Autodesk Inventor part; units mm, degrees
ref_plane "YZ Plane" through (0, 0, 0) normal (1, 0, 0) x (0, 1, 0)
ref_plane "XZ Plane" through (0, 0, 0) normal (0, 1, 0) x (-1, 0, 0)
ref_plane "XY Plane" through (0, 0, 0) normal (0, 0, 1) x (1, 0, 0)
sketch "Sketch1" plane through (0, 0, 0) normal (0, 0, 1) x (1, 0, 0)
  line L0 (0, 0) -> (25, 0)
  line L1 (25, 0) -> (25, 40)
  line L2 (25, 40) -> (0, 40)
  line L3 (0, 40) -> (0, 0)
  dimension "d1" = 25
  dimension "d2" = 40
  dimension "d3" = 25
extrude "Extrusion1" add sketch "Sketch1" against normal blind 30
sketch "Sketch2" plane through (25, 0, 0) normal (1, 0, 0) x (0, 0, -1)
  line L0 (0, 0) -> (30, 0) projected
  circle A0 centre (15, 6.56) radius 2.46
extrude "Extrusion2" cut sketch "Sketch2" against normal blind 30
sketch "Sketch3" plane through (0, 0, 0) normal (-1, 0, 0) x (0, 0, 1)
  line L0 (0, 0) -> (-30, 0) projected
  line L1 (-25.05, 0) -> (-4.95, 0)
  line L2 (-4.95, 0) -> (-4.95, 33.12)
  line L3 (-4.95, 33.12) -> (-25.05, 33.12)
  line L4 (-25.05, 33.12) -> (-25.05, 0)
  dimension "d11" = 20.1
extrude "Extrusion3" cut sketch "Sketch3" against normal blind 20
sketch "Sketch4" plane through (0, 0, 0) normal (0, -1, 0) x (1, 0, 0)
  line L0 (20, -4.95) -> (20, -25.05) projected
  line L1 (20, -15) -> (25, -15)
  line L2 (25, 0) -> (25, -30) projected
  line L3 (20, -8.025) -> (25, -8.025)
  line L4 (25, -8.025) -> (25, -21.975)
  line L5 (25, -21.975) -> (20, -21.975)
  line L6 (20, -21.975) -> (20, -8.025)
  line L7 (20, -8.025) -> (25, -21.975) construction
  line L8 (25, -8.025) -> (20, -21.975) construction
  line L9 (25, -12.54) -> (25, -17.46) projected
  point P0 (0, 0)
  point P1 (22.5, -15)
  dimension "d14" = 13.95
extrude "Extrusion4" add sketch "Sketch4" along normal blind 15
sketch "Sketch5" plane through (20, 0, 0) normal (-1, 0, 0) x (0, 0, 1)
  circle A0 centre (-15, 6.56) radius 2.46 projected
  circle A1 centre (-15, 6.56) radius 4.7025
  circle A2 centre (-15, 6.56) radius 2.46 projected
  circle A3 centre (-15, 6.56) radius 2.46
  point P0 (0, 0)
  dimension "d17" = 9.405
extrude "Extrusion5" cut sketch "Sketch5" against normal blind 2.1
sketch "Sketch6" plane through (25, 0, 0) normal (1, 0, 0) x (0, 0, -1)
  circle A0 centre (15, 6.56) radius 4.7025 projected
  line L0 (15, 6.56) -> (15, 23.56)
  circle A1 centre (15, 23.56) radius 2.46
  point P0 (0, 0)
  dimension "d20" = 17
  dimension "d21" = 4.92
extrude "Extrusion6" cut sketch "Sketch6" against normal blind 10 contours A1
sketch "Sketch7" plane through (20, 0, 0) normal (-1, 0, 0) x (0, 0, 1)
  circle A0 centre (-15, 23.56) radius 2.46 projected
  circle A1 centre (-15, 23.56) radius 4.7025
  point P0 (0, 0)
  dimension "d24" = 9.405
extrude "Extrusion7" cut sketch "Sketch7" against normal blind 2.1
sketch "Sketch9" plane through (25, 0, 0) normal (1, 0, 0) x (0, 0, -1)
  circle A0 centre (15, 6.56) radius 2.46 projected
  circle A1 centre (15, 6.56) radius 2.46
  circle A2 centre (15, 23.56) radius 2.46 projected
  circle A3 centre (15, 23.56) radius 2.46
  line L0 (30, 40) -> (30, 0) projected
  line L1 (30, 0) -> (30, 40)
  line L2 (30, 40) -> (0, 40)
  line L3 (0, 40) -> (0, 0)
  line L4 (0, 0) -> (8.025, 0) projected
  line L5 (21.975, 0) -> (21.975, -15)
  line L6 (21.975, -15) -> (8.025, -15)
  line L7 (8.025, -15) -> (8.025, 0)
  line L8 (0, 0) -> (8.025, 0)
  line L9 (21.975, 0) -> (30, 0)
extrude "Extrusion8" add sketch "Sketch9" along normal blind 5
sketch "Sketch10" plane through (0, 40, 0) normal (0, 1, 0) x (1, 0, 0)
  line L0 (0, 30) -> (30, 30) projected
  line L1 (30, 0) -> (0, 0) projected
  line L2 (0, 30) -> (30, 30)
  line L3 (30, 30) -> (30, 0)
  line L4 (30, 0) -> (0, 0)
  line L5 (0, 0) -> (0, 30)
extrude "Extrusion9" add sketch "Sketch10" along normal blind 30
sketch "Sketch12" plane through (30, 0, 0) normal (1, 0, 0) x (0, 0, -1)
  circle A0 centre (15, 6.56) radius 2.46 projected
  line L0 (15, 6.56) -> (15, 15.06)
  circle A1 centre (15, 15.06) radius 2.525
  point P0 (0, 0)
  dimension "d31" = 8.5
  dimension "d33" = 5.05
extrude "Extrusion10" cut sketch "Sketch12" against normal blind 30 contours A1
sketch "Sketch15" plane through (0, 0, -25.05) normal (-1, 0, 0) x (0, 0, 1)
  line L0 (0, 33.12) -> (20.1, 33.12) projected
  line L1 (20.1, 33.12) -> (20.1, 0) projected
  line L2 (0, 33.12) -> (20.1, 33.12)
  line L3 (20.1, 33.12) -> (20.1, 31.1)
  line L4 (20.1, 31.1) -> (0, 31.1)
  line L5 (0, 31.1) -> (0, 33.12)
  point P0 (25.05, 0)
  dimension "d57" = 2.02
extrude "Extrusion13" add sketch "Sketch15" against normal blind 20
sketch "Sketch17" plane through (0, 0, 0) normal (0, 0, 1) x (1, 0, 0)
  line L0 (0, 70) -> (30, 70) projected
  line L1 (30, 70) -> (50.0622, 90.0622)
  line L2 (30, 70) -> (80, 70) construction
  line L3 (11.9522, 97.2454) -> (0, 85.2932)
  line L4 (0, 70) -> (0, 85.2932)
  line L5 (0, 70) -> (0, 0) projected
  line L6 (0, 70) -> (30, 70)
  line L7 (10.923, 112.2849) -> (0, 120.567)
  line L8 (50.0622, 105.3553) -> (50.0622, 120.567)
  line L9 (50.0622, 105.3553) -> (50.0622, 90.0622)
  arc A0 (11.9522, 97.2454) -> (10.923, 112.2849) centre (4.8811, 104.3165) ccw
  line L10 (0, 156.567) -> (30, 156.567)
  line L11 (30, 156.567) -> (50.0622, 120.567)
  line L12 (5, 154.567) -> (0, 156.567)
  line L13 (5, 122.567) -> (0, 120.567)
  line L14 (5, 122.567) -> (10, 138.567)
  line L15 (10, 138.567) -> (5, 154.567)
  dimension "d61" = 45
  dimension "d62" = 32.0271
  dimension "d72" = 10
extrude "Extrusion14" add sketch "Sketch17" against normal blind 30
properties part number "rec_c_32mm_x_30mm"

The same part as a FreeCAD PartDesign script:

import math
import FreeCAD as App
import Part
import Sketcher
Q = App.Units.Quantity


def add_polygon(sketch, points):
    """Adds a closed chain of lines whose ends are joined by coincident constraints."""
    first, n = sketch.GeometryCount, len(points)
    for a, b in zip(points, points[1:] + points[:1]):
        sketch.addGeometry(Part.LineSegment(App.Vector(*a, 0), App.Vector(*b, 0)), False)
    for i in range(n):
        sketch.addConstraint(Sketcher.Constraint("Coincident", first + i, 2, first + (i + 1) % n, 1))

doc = App.newDocument("Part")
params = doc.addObject("Spreadsheet::Sheet", "Params")
for row, (alias, value) in enumerate([
    ("sketch1_width", "25 mm"),
    ("sketch1_height", "40 mm"),
    ("pad1_length", "30 mm"),
    ("sketch2_diameter", "4.92 mm"),
    ("pocket1_length", "30 mm"),
    ("sketch3_height", "20.1 mm"),
    ("sketch3_width", "33.12 mm"),
    ("pocket2_length", "20 mm"),
    ("sketch4_height", "13.95 mm"),
    ("sketch4_width", "5 mm"),
    ("pad2_length", "15 mm"),
    ("sketch5_diameter", "4.92 mm"),
    ("pocket3_length", "2.1 mm"),
    ("sketch6_diameter", "4.92 mm"),
    ("pocket4_length", "10 mm"),
    ("sketch7_diameter", "4.92 mm"),
    ("pocket5_length", "2.1 mm"),
    ("sketch8_diameter", "4.92 mm"),
    ("sketch8_width", "40 mm"),
    ("sketch8_width2", "15 mm"),
    ("sketch8_height", "30 mm"),
    ("sketch8_height2", "13.95 mm"),
    ("pad3_length", "5 mm"),
    ("sketch9_width", "30 mm"),
    ("pad4_length", "30 mm"),
    ("sketch10_diameter", "5.05 mm"),
    ("pocket6_length", "30 mm"),
    ("sketch11_width", "2.02 mm"),
    ("sketch11_height", "20.1 mm"),
    ("pad5_length", "20 mm"),
    ("sketch12_radius", "10 mm"),
    ("sketch12_width", "30 mm"),
    ("pad6_length", "30 mm"),
], start=1):
    params.set(f"A{row}", alias)
    params.set(f"B{row}", "=" + value)
    params.setAlias(f"B{row}", alias)

body = doc.addObject("PartDesign::Body", "Body")

# Sketch on XY plane
sketch1 = doc.addObject("Sketcher::SketchObject", "Sketch")
body.addObject(sketch1)
sketch1.AttachmentSupport = (doc.XY_Plane, [""])
sketch1.MapMode = "FlatFace"
add_polygon(sketch1, [(0, 40), (0, 0), (25, 0), (25, 40)])  # lines 0-3
sketch1.addConstraint(Sketcher.Constraint("Vertical", 0))
sketch1.addConstraint(Sketcher.Constraint("Horizontal", 1))
sketch1.addConstraint(Sketcher.Constraint("Vertical", 2))
sketch1.addConstraint(Sketcher.Constraint("Horizontal", 3))
sketch1.addConstraint(Sketcher.Constraint("Coincident", 0, 2, -1, 1))
sketch1.addConstraint(Sketcher.Constraint("DistanceX", 1, 1, 1, 2, Q("25 mm")))
sketch1.addConstraint(Sketcher.Constraint("DistanceY", 0, 2, 0, 1, Q("40 mm")))
sketch1.setExpression("Constraints[9]", "Params.sketch1_width")
sketch1.setExpression("Constraints[10]", "Params.sketch1_height")
pad1 = doc.addObject("PartDesign::Pad", "Pad")
body.addObject(pad1)
pad1.Profile = sketch1
pad1.setExpression("Length", "Params.pad1_length")
pad1.Reversed = True

# Sketch on YZ plane
sketch2 = doc.addObject("Sketcher::SketchObject", "Sketch001")
body.addObject(sketch2)
sketch2.AttachmentSupport = (doc.YZ_Plane, [""])
sketch2.MapMode = "FlatFace"
sketch2.AttachmentOffset = App.Placement(App.Vector(0, 0, 25), App.Rotation())
sketch2.addGeometry(Part.Circle(App.Vector(6.56, -15, 0), App.Vector(0, 0, 1), 2.46), False)
sketch2.addConstraint(Sketcher.Constraint("Diameter", 0, Q("4.92 mm")))
sketch2.addConstraint(Sketcher.Constraint("DistanceY", 0, 3, -1, 1, Q("15 mm")))
sketch2.addConstraint(Sketcher.Constraint("DistanceX", -1, 1, 0, 3, Q("6.56 mm")))
sketch2.setExpression("Constraints[0]", "Params.sketch2_diameter")
pocket1 = doc.addObject("PartDesign::Pocket", "Pocket")
body.addObject(pocket1)
pocket1.Profile = sketch2
pocket1.setExpression("Length", "Params.pocket1_length")

# Sketch on YZ plane
sketch3 = doc.addObject("Sketcher::SketchObject", "Sketch002")
body.addObject(sketch3)
sketch3.AttachmentSupport = (doc.YZ_Plane, [""])
sketch3.MapMode = "FlatFace"
add_polygon(sketch3, [(0, -25.05), (0, -4.95), (33.12, -4.95), (33.12, -25.05)])  # lines 0-3
sketch3.addConstraint(Sketcher.Constraint("Vertical", 0))
sketch3.addConstraint(Sketcher.Constraint("Horizontal", 1))
sketch3.addConstraint(Sketcher.Constraint("Vertical", 2))
sketch3.addConstraint(Sketcher.Constraint("Horizontal", 3))
sketch3.addConstraint(Sketcher.Constraint("PointOnObject", 0, 2, -2))
sketch3.addConstraint(Sketcher.Constraint("DistanceY", 0, 1, 0, 2, Q("20.1 mm")))
sketch3.addConstraint(Sketcher.Constraint("DistanceX", 1, 1, 1, 2, Q("33.12 mm")))
sketch3.addConstraint(Sketcher.Constraint("DistanceY", 0, 2, -1, 1, Q("4.95 mm")))
sketch3.setExpression("Constraints[9]", "Params.sketch3_height")
sketch3.setExpression("Constraints[10]", "Params.sketch3_width")
pocket2 = doc.addObject("PartDesign::Pocket", "Pocket001")
body.addObject(pocket2)
pocket2.Profile = sketch3
pocket2.setExpression("Length", "Params.pocket2_length")
pocket2.Reversed = True

# Sketch on XZ plane
sketch4 = doc.addObject("Sketcher::SketchObject", "Sketch003")
body.addObject(sketch4)
sketch4.AttachmentSupport = (doc.XZ_Plane, [""])
sketch4.MapMode = "FlatFace"
add_polygon(sketch4, [(25, -8.025), (20, -8.025), (20, -21.975), (25, -21.975)])  # lines 0-3
sketch4.addConstraint(Sketcher.Constraint("Horizontal", 0))
sketch4.addConstraint(Sketcher.Constraint("Vertical", 1))
sketch4.addConstraint(Sketcher.Constraint("Horizontal", 2))
sketch4.addConstraint(Sketcher.Constraint("Vertical", 3))
sketch4.addConstraint(Sketcher.Constraint("DistanceY", 1, 2, 1, 1, Q("13.95 mm")))
sketch4.addConstraint(Sketcher.Constraint("DistanceX", 0, 2, 0, 1, Q("5 mm")))
sketch4.addConstraint(Sketcher.Constraint("DistanceX", -1, 1, 0, 2, Q("20 mm")))
sketch4.addConstraint(Sketcher.Constraint("DistanceY", 0, 2, -1, 1, Q("8.025 mm")))
sketch4.setExpression("Constraints[8]", "Params.sketch4_height")
sketch4.setExpression("Constraints[9]", "Params.sketch4_width")
pad2 = doc.addObject("PartDesign::Pad", "Pad001")
body.addObject(pad2)
pad2.Profile = sketch4
pad2.setExpression("Length", "Params.pad2_length")

# Sketch on YZ plane
sketch5 = doc.addObject("Sketcher::SketchObject", "Sketch004")
body.addObject(sketch5)
sketch5.AttachmentSupport = (doc.YZ_Plane, [""])
sketch5.MapMode = "FlatFace"
sketch5.AttachmentOffset = App.Placement(App.Vector(0, 0, 20), App.Rotation())
sketch5.addGeometry(Part.Circle(App.Vector(6.56, -15, 0), App.Vector(0, 0, 1), 4.7025), False)
sketch5.addGeometry(Part.Circle(App.Vector(6.56, -15, 0), App.Vector(0, 0, 1), 2.46), False)
sketch5.addConstraint(Sketcher.Constraint("Coincident", 1, 3, 0, 3))
sketch5.addConstraint(Sketcher.Constraint("Diameter", 0, Q("9.405 mm")))
sketch5.addConstraint(Sketcher.Constraint("Diameter", 1, Q("4.92 mm")))
sketch5.addConstraint(Sketcher.Constraint("DistanceY", 0, 3, -1, 1, Q("15 mm")))
sketch5.addConstraint(Sketcher.Constraint("DistanceX", -1, 1, 0, 3, Q("6.56 mm")))
sketch5.setExpression("Constraints[2]", "Params.sketch5_diameter")
pocket3 = doc.addObject("PartDesign::Pocket", "Pocket002")
body.addObject(pocket3)
pocket3.Profile = sketch5
pocket3.setExpression("Length", "Params.pocket3_length")
pocket3.Reversed = True

# Sketch on YZ plane
sketch6 = doc.addObject("Sketcher::SketchObject", "Sketch005")
body.addObject(sketch6)
sketch6.AttachmentSupport = (doc.YZ_Plane, [""])
sketch6.MapMode = "FlatFace"
sketch6.AttachmentOffset = App.Placement(App.Vector(0, 0, 25), App.Rotation())
sketch6.addGeometry(Part.Circle(App.Vector(23.56, -15, 0), App.Vector(0, 0, 1), 2.46), False)
sketch6.addConstraint(Sketcher.Constraint("Diameter", 0, Q("4.92 mm")))
sketch6.addConstraint(Sketcher.Constraint("DistanceY", 0, 3, -1, 1, Q("15 mm")))
sketch6.addConstraint(Sketcher.Constraint("DistanceX", -1, 1, 0, 3, Q("23.56 mm")))
sketch6.setExpression("Constraints[0]", "Params.sketch6_diameter")
pocket4 = doc.addObject("PartDesign::Pocket", "Pocket003")
body.addObject(pocket4)
pocket4.Profile = sketch6
pocket4.setExpression("Length", "Params.pocket4_length")

# Sketch on YZ plane
sketch7 = doc.addObject("Sketcher::SketchObject", "Sketch006")
body.addObject(sketch7)
sketch7.AttachmentSupport = (doc.YZ_Plane, [""])
sketch7.MapMode = "FlatFace"
sketch7.AttachmentOffset = App.Placement(App.Vector(0, 0, 20), App.Rotation())
sketch7.addGeometry(Part.Circle(App.Vector(23.56, -15, 0), App.Vector(0, 0, 1), 4.7025), False)
sketch7.addGeometry(Part.Circle(App.Vector(23.56, -15, 0), App.Vector(0, 0, 1), 2.46), False)
sketch7.addConstraint(Sketcher.Constraint("Coincident", 1, 3, 0, 3))
sketch7.addConstraint(Sketcher.Constraint("Diameter", 0, Q("9.405 mm")))
sketch7.addConstraint(Sketcher.Constraint("Diameter", 1, Q("4.92 mm")))
sketch7.addConstraint(Sketcher.Constraint("DistanceY", 0, 3, -1, 1, Q("15 mm")))
sketch7.addConstraint(Sketcher.Constraint("DistanceX", -1, 1, 0, 3, Q("23.56 mm")))
sketch7.setExpression("Constraints[2]", "Params.sketch7_diameter")
pocket5 = doc.addObject("PartDesign::Pocket", "Pocket004")
body.addObject(pocket5)
pocket5.Profile = sketch7
pocket5.setExpression("Length", "Params.pocket5_length")
pocket5.Reversed = True

# Sketch on YZ plane
sketch8 = doc.addObject("Sketcher::SketchObject", "Sketch007")
body.addObject(sketch8)
sketch8.AttachmentSupport = (doc.YZ_Plane, [""])
sketch8.MapMode = "FlatFace"
sketch8.AttachmentOffset = App.Placement(App.Vector(0, 0, 25), App.Rotation())
add_polygon(sketch8, [(0, -30), (40, -30), (40, 0), (0, 0), (0, -8.025), (-15, -8.025), (-15, -21.975), (0, -21.975)])  # lines 0-7
sketch8.addGeometry(Part.Circle(App.Vector(6.56, -15, 0), App.Vector(0, 0, 1), 2.46), False)  # 8
sketch8.addGeometry(Part.Circle(App.Vector(23.56, -15, 0), App.Vector(0, 0, 1), 2.46), False)  # 9
sketch8.addConstraint(Sketcher.Constraint("Horizontal", 0))
sketch8.addConstraint(Sketcher.Constraint("Vertical", 1))
sketch8.addConstraint(Sketcher.Constraint("Horizontal", 2))
sketch8.addConstraint(Sketcher.Constraint("Vertical", 3))
sketch8.addConstraint(Sketcher.Constraint("Horizontal", 4))
sketch8.addConstraint(Sketcher.Constraint("Vertical", 5))
sketch8.addConstraint(Sketcher.Constraint("Horizontal", 6))
sketch8.addConstraint(Sketcher.Constraint("Vertical", 7))
sketch8.addConstraint(Sketcher.Constraint("Coincident", 2, 2, -1, 1))
sketch8.addConstraint(Sketcher.Constraint("Equal", 8, 9))
sketch8.addConstraint(Sketcher.Constraint("PointOnObject", 6, 2, -2))
sketch8.addConstraint(Sketcher.Constraint("Horizontal", 8, 3, 9, 3))
sketch8.addConstraint(Sketcher.Constraint("Equal", 3, 7))
sketch8.addConstraint(Sketcher.Constraint("Diameter", 8, Q("4.92 mm")))
sketch8.addConstraint(Sketcher.Constraint("DistanceX", 0, 1, 0, 2, Q("40 mm")))
sketch8.addConstraint(Sketcher.Constraint("DistanceX", 4, 2, 4, 1, Q("15 mm")))
sketch8.addConstraint(Sketcher.Constraint("DistanceY", 1, 1, 1, 2, Q("30 mm")))
sketch8.addConstraint(Sketcher.Constraint("DistanceY", 8, 3, -1, 1, Q("15 mm")))
sketch8.addConstraint(Sketcher.Constraint("DistanceX", 8, 3, 9, 3, Q("17 mm")))
sketch8.addConstraint(Sketcher.Constraint("DistanceY", 5, 2, 5, 1, Q("13.95 mm")))
sketch8.addConstraint(Sketcher.Constraint("DistanceX", -1, 1, 8, 3, Q("6.56 mm")))
sketch8.setExpression("Constraints[21]", "Params.sketch8_diameter")
sketch8.setExpression("Constraints[22]", "Params.sketch8_width")
sketch8.setExpression("Constraints[23]", "Params.sketch8_width2")
sketch8.setExpression("Constraints[24]", "Params.sketch8_height")
sketch8.setExpression("Constraints[27]", "Params.sketch8_height2")
pad3 = doc.addObject("PartDesign::Pad", "Pad002")
body.addObject(pad3)
pad3.Profile = sketch8
pad3.setExpression("Length", "Params.pad3_length")

# Sketch on XZ plane
sketch9 = doc.addObject("Sketcher::SketchObject", "Sketch008")
body.addObject(sketch9)
sketch9.AttachmentSupport = (doc.XZ_Plane, [""])
sketch9.MapMode = "FlatFace"
sketch9.AttachmentOffset = App.Placement(App.Vector(0, 0, -40), App.Rotation())
add_polygon(sketch9, [(30, -30), (0, -30), (0, 0), (30, 0)])  # lines 0-3
sketch9.addConstraint(Sketcher.Constraint("Horizontal", 0))
sketch9.addConstraint(Sketcher.Constraint("Vertical", 1))
sketch9.addConstraint(Sketcher.Constraint("Horizontal", 2))
sketch9.addConstraint(Sketcher.Constraint("Vertical", 3))
sketch9.addConstraint(Sketcher.Constraint("Coincident", 1, 2, -1, 1))
sketch9.addConstraint(Sketcher.Constraint("Equal", 2, 1))
sketch9.addConstraint(Sketcher.Constraint("DistanceX", 0, 2, 0, 1, Q("30 mm")))
sketch9.setExpression("Constraints[10]", "Params.sketch9_width")
pad4 = doc.addObject("PartDesign::Pad", "Pad003")
body.addObject(pad4)
pad4.Profile = sketch9
pad4.setExpression("Length", "Params.pad4_length")
pad4.Reversed = True

# Sketch on YZ plane
sketch10 = doc.addObject("Sketcher::SketchObject", "Sketch009")
body.addObject(sketch10)
sketch10.AttachmentSupport = (doc.YZ_Plane, [""])
sketch10.MapMode = "FlatFace"
sketch10.AttachmentOffset = App.Placement(App.Vector(0, 0, 30), App.Rotation())
sketch10.addGeometry(Part.Circle(App.Vector(15.06, -15, 0), App.Vector(0, 0, 1), 2.525), False)
sketch10.addConstraint(Sketcher.Constraint("Diameter", 0, Q("5.05 mm")))
sketch10.addConstraint(Sketcher.Constraint("DistanceY", 0, 3, -1, 1, Q("15 mm")))
sketch10.addConstraint(Sketcher.Constraint("DistanceX", -1, 1, 0, 3, Q("15.06 mm")))
sketch10.setExpression("Constraints[0]", "Params.sketch10_diameter")
pocket6 = doc.addObject("PartDesign::Pocket", "Pocket005")
body.addObject(pocket6)
pocket6.Profile = sketch10
pocket6.setExpression("Length", "Params.pocket6_length")

# Sketch on YZ plane
sketch11 = doc.addObject("Sketcher::SketchObject", "Sketch010")
body.addObject(sketch11)
sketch11.AttachmentSupport = (doc.YZ_Plane, [""])
sketch11.MapMode = "FlatFace"
add_polygon(sketch11, [(33.12, -4.95), (33.12, -25.05), (31.1, -25.05), (31.1, -4.95)])  # lines 0-3
sketch11.addConstraint(Sketcher.Constraint("Vertical", 0))
sketch11.addConstraint(Sketcher.Constraint("Horizontal", 1))
sketch11.addConstraint(Sketcher.Constraint("Vertical", 2))
sketch11.addConstraint(Sketcher.Constraint("Horizontal", 3))
sketch11.addConstraint(Sketcher.Constraint("DistanceX", 1, 2, 1, 1, Q("2.02 mm")))
sketch11.addConstraint(Sketcher.Constraint("DistanceY", 0, 2, 0, 1, Q("20.1 mm")))
sketch11.addConstraint(Sketcher.Constraint("DistanceX", -1, 1, 1, 2, Q("31.1 mm")))
sketch11.addConstraint(Sketcher.Constraint("DistanceY", 0, 2, -1, 1, Q("25.05 mm")))
sketch11.setExpression("Constraints[8]", "Params.sketch11_width")
sketch11.setExpression("Constraints[9]", "Params.sketch11_height")
pad5 = doc.addObject("PartDesign::Pad", "Pad004")
body.addObject(pad5)
pad5.Profile = sketch11
pad5.setExpression("Length", "Params.pad5_length")

# Sketch on XY plane
sketch12 = doc.addObject("Sketcher::SketchObject", "Sketch011")
body.addObject(sketch12)
sketch12.AttachmentSupport = (doc.XY_Plane, [""])
sketch12.MapMode = "FlatFace"
sketch12.addGeometry(Part.LineSegment(App.Vector(0, 85.2932, 0), App.Vector(0, 70, 0)), False)
sketch12.addGeometry(Part.LineSegment(App.Vector(0, 70, 0), App.Vector(30, 70, 0)), False)
sketch12.addGeometry(Part.LineSegment(App.Vector(30, 70, 0), App.Vector(50.0622, 90.0622, 0)), False)
sketch12.addGeometry(Part.LineSegment(App.Vector(50.0622, 90.0622, 0), App.Vector(50.0622, 120.567, 0)), False)
sketch12.addGeometry(Part.LineSegment(App.Vector(50.0622, 120.567, 0), App.Vector(30, 156.567, 0)), False)
sketch12.addGeometry(Part.LineSegment(App.Vector(30, 156.567, 0), App.Vector(0, 156.567, 0)), False)
sketch12.addGeometry(Part.LineSegment(App.Vector(0, 156.567, 0), App.Vector(5, 154.567, 0)), False)
sketch12.addGeometry(Part.LineSegment(App.Vector(5, 154.567, 0), App.Vector(10, 138.567, 0)), False)
sketch12.addGeometry(Part.LineSegment(App.Vector(10, 138.567, 0), App.Vector(5, 122.567, 0)), False)
sketch12.addGeometry(Part.LineSegment(App.Vector(5, 122.567, 0), App.Vector(0, 120.567, 0)), False)
sketch12.addGeometry(Part.LineSegment(App.Vector(0, 120.567, 0), App.Vector(10.923, 112.2849, 0)), False)
sketch12.addGeometry(Part.ArcOfCircle(Part.Circle(App.Vector(4.8811, 104.3165, 0), App.Vector(0, 0, 1), 10.000046), math.radians(-45), math.radians(52.829413)), False)
sketch12.addGeometry(Part.LineSegment(App.Vector(11.9522, 97.2454, 0), App.Vector(0, 85.2932, 0)), False)
sketch12.addConstraint(Sketcher.Constraint("Coincident", 0, 2, 1, 1))
sketch12.addConstraint(Sketcher.Constraint("Coincident", 1, 2, 2, 1))
sketch12.addConstraint(Sketcher.Constraint("Coincident", 2, 2, 3, 1))
sketch12.addConstraint(Sketcher.Constraint("Coincident", 3, 2, 4, 1))
sketch12.addConstraint(Sketcher.Constraint("Coincident", 4, 2, 5, 1))
sketch12.addConstraint(Sketcher.Constraint("Coincident", 5, 2, 6, 1))
sketch12.addConstraint(Sketcher.Constraint("Coincident", 6, 2, 7, 1))
sketch12.addConstraint(Sketcher.Constraint("Coincident", 7, 2, 8, 1))
sketch12.addConstraint(Sketcher.Constraint("Coincident", 8, 2, 9, 1))
sketch12.addConstraint(Sketcher.Constraint("Coincident", 9, 2, 10, 1))
sketch12.addConstraint(Sketcher.Constraint("Tangent", 10, 2, 11, 2))
sketch12.addConstraint(Sketcher.Constraint("Tangent", 11, 1, 12, 1))
sketch12.addConstraint(Sketcher.Constraint("Coincident", 12, 2, 0, 1))
sketch12.addConstraint(Sketcher.Constraint("Vertical", 0))
sketch12.addConstraint(Sketcher.Constraint("Horizontal", 1))
sketch12.addConstraint(Sketcher.Constraint("Vertical", 3))
sketch12.addConstraint(Sketcher.Constraint("Horizontal", 5))
sketch12.addConstraint(Sketcher.Constraint("PointOnObject", 0, 2, -2))
sketch12.addConstraint(Sketcher.Constraint("PointOnObject", 5, 2, -2))
sketch12.addConstraint(Sketcher.Constraint("PointOnObject", 9, 2, -2))
sketch12.addConstraint(Sketcher.Constraint("Parallel", 2, 12))
sketch12.addConstraint(Sketcher.Constraint("Horizontal", 3, 2, 9, 2))
sketch12.addConstraint(Sketcher.Constraint("Vertical", 1, 2, 4, 2))
sketch12.addConstraint(Sketcher.Constraint("Vertical", 6, 2, 8, 2))
sketch12.addConstraint(Sketcher.Constraint("Equal", 7, 8))
sketch12.addConstraint(Sketcher.Constraint("Equal", 6, 9))
sketch12.addConstraint(Sketcher.Constraint("Radius", 11, Q("10 mm")))
sketch12.addConstraint(Sketcher.Constraint("Angle", 2, Q("45 deg")))
sketch12.addConstraint(Sketcher.Constraint("DistanceX", -1, 1, 7, 2, Q("10 mm")))
sketch12.addConstraint(Sketcher.Constraint("DistanceX", 1, 1, 1, 2, Q("30 mm")))
sketch12.addConstraint(Sketcher.Constraint("DistanceY", -1, 1, 0, 2, Q("70 mm")))
sketch12.addConstraint(Sketcher.Constraint("DistanceX", -1, 1, 6, 2, Q("5 mm")))
sketch12.addConstraint(Sketcher.Constraint("DistanceY", 3, 2, 4, 2, Q("36 mm")))
sketch12.addConstraint(Sketcher.Constraint("DistanceY", 6, 2, 5, 2, Q("2 mm")))
sketch12.addConstraint(Sketcher.Constraint("Angle", 4, Q("119.1302 deg")))
sketch12.addConstraint(Sketcher.Constraint("Angle", 10, Q("-37.1703 deg")))
sketch12.addConstraint(Sketcher.Constraint("Distance", 12, Q("16.903 mm")))
sketch12.addConstraint(Sketcher.Constraint("DistanceY", 0, 2, 0, 1, Q("15.2932 mm")))
sketch12.setExpression("Constraints[26]", "Params.sketch12_radius")
sketch12.setExpression("Constraints[29]", "Params.sketch12_width")
pad6 = doc.addObject("PartDesign::Pad", "Pad005")
body.addObject(pad6)
pad6.Profile = sketch12
pad6.setExpression("Length", "Params.pad6_length")
pad6.Reversed = True

doc.recompute()
